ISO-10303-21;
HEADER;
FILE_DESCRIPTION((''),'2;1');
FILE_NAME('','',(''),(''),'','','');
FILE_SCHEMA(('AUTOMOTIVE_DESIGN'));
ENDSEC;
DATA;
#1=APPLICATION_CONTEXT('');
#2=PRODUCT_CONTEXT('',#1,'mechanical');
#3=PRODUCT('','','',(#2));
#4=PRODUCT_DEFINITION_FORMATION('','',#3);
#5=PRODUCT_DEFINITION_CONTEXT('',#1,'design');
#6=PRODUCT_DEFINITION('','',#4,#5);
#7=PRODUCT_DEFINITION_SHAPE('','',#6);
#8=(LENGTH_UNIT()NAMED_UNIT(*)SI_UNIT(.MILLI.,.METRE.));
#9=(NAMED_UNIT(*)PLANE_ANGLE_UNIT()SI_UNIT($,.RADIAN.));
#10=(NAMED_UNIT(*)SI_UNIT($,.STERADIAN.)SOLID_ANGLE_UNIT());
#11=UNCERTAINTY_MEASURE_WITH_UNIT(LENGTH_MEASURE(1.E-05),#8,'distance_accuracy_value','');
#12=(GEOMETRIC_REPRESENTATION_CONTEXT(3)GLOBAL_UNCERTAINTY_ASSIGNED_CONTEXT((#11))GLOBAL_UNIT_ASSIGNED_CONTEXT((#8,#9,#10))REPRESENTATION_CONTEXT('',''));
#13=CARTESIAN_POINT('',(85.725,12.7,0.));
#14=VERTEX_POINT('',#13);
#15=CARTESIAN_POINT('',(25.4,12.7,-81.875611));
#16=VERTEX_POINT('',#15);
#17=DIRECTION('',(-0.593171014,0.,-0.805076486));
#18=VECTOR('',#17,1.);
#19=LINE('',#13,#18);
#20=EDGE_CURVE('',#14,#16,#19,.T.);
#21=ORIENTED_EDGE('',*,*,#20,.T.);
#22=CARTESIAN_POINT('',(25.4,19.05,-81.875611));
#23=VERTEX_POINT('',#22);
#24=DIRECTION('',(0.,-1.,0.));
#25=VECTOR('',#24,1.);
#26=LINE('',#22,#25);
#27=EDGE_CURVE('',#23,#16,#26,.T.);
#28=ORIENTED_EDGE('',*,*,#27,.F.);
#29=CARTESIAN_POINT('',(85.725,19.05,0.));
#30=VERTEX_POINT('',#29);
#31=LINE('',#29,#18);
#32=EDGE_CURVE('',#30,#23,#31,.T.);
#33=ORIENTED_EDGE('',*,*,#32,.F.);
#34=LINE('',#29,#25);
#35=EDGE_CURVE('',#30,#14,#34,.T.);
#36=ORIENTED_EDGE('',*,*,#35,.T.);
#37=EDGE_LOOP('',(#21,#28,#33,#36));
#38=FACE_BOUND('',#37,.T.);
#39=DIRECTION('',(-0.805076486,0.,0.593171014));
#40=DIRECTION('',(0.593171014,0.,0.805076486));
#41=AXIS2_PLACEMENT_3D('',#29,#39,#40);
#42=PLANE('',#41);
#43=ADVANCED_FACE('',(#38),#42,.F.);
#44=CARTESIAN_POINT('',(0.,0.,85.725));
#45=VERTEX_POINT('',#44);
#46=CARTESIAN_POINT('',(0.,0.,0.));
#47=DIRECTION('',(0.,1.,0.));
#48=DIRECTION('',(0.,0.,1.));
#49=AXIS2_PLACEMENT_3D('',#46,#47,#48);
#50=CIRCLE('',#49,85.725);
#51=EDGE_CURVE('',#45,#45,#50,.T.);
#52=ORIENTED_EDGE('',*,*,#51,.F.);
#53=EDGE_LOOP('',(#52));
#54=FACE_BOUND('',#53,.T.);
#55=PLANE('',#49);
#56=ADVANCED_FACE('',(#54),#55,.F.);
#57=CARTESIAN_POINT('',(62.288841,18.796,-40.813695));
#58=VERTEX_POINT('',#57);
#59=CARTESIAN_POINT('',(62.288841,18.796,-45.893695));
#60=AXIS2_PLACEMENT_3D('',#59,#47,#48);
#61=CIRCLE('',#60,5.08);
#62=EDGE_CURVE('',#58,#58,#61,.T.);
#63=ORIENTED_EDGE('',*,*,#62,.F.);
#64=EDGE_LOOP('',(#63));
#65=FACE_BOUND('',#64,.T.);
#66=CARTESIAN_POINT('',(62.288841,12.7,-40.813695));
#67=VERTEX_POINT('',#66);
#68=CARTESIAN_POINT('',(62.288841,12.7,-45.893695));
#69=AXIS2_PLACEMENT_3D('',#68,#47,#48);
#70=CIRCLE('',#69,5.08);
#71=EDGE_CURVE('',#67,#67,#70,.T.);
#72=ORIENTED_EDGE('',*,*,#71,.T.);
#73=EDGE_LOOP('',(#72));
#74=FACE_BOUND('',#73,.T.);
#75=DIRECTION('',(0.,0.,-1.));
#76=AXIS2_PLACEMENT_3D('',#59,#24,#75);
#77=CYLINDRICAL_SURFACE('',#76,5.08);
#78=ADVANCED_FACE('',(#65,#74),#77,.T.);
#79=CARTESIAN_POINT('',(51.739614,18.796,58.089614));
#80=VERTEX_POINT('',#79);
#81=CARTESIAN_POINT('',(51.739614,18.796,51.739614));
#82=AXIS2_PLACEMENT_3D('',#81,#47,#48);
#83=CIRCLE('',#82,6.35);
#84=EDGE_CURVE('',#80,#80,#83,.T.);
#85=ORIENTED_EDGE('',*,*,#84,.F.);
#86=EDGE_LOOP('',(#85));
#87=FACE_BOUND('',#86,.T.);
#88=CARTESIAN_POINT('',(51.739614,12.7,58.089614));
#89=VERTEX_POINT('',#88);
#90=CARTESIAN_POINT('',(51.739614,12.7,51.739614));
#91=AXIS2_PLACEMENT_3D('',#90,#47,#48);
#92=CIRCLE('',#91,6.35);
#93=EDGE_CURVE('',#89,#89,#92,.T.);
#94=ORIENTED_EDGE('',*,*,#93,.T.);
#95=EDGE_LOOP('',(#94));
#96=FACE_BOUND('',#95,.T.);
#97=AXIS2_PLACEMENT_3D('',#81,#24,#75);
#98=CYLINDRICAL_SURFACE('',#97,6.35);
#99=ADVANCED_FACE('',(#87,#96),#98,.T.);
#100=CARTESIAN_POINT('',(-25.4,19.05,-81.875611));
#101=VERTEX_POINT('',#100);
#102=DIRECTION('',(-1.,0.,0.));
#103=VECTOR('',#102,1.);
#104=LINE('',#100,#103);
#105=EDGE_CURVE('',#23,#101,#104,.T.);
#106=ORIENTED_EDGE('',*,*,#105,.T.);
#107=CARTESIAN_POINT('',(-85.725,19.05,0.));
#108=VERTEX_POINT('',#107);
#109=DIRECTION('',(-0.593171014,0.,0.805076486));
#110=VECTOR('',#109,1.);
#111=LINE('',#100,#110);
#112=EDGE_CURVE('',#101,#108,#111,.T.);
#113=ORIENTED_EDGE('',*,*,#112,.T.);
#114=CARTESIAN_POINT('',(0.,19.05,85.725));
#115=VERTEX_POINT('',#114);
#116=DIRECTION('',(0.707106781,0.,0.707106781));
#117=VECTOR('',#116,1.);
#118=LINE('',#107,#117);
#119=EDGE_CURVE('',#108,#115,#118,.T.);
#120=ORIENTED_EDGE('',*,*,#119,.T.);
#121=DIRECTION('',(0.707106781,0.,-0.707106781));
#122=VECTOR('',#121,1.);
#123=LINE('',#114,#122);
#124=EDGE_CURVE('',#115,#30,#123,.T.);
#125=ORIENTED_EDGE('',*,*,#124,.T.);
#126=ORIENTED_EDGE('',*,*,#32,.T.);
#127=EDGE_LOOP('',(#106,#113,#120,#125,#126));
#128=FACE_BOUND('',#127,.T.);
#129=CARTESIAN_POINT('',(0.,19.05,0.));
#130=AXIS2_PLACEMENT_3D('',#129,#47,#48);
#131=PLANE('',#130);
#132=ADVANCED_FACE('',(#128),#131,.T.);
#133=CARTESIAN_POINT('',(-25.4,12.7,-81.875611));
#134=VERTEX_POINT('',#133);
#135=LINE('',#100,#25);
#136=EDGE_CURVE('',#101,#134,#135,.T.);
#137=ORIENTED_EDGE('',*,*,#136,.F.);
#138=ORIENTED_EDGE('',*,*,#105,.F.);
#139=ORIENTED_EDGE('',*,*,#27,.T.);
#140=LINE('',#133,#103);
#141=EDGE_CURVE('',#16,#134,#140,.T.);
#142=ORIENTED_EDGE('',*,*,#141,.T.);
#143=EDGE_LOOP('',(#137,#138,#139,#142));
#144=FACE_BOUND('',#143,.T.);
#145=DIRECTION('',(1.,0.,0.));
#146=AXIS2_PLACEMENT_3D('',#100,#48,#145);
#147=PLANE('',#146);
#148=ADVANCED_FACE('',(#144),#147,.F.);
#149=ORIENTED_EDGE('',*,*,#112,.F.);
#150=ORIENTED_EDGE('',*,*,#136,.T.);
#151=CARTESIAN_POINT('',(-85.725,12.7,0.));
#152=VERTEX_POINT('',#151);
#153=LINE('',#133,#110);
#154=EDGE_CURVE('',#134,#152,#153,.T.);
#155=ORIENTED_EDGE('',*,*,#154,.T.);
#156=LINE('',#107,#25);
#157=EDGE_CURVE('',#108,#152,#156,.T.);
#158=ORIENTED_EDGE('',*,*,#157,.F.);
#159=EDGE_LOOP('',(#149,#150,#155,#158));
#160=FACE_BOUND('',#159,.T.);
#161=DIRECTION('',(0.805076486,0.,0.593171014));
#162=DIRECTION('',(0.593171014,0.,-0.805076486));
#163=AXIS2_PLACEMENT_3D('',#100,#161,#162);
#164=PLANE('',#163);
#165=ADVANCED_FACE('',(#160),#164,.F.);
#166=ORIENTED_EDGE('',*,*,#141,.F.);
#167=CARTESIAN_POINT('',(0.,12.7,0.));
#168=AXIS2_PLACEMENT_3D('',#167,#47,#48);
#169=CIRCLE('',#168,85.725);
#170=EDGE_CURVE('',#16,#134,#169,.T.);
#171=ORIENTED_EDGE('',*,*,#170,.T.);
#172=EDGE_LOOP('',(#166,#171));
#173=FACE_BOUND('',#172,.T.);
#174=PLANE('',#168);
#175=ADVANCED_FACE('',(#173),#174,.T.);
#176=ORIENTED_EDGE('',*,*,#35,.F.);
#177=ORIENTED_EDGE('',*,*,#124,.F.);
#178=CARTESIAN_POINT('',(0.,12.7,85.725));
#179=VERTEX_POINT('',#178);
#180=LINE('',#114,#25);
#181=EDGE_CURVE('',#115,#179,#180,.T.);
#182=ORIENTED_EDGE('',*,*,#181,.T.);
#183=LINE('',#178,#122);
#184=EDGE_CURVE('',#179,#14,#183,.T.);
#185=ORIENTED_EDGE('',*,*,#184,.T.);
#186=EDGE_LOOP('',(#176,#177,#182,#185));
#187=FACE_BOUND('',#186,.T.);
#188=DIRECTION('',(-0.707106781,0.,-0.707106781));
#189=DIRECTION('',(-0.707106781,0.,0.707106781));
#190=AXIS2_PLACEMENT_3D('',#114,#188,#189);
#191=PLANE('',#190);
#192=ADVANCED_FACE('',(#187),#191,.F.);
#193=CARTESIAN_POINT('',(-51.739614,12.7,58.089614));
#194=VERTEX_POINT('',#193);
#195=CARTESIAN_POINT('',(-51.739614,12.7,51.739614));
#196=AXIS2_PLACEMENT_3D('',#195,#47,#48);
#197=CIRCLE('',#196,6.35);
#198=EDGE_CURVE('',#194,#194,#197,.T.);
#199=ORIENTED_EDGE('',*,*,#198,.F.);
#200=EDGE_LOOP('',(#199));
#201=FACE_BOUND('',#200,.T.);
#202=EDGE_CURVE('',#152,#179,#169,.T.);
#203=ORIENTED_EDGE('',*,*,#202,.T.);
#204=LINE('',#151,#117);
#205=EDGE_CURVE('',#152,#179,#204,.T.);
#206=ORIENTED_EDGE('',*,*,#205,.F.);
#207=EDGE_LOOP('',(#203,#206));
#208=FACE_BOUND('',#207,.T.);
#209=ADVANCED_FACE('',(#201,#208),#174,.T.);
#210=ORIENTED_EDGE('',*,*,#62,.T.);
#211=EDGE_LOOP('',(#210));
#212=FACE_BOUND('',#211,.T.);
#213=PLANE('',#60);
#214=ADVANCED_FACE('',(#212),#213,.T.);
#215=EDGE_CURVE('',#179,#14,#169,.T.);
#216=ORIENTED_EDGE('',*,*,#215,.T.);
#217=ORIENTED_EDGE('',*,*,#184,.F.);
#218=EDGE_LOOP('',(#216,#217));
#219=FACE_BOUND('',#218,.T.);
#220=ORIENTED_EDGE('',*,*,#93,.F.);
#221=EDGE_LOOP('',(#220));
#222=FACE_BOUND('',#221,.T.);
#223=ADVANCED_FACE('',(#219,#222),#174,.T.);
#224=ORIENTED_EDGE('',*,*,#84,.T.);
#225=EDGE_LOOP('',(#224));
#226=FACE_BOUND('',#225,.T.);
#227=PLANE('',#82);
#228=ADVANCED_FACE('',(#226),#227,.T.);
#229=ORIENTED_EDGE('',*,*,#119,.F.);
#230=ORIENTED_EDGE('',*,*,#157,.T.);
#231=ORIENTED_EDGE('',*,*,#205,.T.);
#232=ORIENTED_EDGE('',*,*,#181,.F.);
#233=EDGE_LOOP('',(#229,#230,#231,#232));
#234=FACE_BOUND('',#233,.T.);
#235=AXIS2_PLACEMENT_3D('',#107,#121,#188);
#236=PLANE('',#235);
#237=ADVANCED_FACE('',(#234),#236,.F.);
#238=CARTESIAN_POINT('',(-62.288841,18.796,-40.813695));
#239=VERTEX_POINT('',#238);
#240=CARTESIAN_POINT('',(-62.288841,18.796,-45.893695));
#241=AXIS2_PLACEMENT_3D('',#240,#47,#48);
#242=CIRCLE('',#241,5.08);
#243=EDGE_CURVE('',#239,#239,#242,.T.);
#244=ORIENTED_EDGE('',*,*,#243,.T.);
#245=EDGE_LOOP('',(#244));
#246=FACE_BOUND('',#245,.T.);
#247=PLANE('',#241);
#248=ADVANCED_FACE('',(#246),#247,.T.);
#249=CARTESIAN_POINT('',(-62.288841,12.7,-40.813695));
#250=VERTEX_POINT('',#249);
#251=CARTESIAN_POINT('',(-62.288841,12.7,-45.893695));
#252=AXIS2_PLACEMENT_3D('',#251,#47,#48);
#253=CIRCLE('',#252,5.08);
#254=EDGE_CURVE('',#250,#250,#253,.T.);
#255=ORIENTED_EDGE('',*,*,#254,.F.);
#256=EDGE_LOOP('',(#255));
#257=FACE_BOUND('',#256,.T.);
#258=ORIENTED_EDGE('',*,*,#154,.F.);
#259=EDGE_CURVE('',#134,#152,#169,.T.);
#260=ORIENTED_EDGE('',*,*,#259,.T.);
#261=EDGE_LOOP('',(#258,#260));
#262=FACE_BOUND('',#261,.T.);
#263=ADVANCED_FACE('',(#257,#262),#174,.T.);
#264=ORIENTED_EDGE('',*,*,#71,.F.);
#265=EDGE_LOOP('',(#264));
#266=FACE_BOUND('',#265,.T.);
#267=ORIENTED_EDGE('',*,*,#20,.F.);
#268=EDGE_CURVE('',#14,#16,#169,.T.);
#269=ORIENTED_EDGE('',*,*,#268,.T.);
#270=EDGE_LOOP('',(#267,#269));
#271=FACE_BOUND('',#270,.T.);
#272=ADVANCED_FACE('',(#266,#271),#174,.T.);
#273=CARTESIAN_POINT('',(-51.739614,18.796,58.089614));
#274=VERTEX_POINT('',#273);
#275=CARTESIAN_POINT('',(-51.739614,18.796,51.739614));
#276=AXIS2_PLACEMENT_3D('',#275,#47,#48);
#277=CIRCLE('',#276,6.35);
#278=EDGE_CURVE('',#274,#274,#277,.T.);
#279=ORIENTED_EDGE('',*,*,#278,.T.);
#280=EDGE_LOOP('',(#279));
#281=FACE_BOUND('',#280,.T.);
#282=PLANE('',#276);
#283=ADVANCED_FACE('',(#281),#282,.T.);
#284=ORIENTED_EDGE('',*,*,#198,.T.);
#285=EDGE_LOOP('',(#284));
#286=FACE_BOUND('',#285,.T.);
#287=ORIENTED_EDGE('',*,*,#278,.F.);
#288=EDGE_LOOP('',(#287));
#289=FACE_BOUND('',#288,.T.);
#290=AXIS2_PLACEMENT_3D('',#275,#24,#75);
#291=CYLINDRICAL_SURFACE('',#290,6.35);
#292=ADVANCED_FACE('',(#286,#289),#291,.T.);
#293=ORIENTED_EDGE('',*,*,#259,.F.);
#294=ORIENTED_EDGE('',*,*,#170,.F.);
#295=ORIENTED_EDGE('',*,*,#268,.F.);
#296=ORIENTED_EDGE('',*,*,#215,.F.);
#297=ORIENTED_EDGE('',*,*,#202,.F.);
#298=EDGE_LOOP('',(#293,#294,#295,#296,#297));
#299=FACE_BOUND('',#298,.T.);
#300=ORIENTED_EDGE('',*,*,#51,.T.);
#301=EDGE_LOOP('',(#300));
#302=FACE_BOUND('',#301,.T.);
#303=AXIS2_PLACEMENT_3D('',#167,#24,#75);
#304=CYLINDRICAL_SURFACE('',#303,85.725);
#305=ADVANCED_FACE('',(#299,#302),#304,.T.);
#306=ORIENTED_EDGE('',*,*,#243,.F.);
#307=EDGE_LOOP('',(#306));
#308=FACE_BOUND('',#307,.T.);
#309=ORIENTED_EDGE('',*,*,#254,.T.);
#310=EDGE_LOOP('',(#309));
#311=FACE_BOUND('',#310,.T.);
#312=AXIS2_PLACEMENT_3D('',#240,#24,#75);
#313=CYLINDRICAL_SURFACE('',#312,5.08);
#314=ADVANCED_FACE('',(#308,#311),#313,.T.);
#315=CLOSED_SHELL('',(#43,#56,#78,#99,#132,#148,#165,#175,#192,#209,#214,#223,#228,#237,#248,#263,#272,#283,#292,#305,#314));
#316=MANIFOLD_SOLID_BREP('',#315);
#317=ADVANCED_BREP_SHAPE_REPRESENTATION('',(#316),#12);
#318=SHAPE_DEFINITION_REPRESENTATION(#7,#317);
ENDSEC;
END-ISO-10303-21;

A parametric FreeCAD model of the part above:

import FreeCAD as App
import Part
import Sketcher
from FreeCAD import Vector
Q = App.Units.Quantity

doc = App.newDocument("Part")
body = doc.addObject("PartDesign::Body", "Body")

sketch1 = body.newObject("Sketcher::SketchObject", "Sketch")
sketch1.AttachmentSupport = (doc.getObject("XZ_Plane"), [""])
sketch1.MapMode = "FlatFace"
sketch1.addGeometry(Part.Circle(Vector(0, 0, 0), Vector(0, 0, 1), 86), False)
sketch1.addConstraint(Sketcher.Constraint("Coincident", 0, 3, -1, 1))
sketch1.addConstraint(Sketcher.Constraint("Diameter", 0, Q("6.75 in")))
pad1 = body.newObject("PartDesign::Pad", "Pad")
pad1.Profile = sketch1
pad1.Length = Q("0.5 in")
pad1.Reversed = True

sketch2 = body.newObject("Sketcher::SketchObject", "Sketch001")
sketch2.AttachmentSupport = (doc.getObject("XZ_Plane"), [""])
sketch2.MapMode = "FlatFace"
sketch2.AttachmentOffset = App.Placement(Vector(0, 0, -0.5 * 25.4), App.Rotation())
sketch2.addGeometry(Part.LineSegment(Vector(25, -82, 0), Vector(-25, -82, 0)), False)
sketch2.addGeometry(Part.LineSegment(Vector(-25, -82, 0), Vector(-86, 0, 0)), False)
sketch2.addGeometry(Part.LineSegment(Vector(-86, 0, 0), Vector(0, 86, 0)), False)
sketch2.addGeometry(Part.LineSegment(Vector(0, 86, 0), Vector(86, 0, 0)), False)
sketch2.addGeometry(Part.LineSegment(Vector(86, 0, 0), Vector(25, -82, 0)), False)
sketch2.addConstraint(Sketcher.Constraint("Coincident", 0, 2, 1, 1))
sketch2.addConstraint(Sketcher.Constraint("Coincident", 1, 2, 2, 1))
sketch2.addConstraint(Sketcher.Constraint("Coincident", 2, 2, 3, 1))
sketch2.addConstraint(Sketcher.Constraint("Coincident", 3, 2, 4, 1))
sketch2.addConstraint(Sketcher.Constraint("Coincident", 4, 2, 0, 1))
sketch2.addConstraint(Sketcher.Constraint("Horizontal", 0))
sketch2.addConstraint(Sketcher.Constraint("Symmetric", 1, 2, 3, 2, -1, 1))
sketch2.addConstraint(Sketcher.Constraint("PointOnObject", 1, 2, -1))
sketch2.addConstraint(Sketcher.Constraint("PointOnObject", 2, 2, -2))
sketch2.addConstraint(Sketcher.Constraint("Perpendicular", 2, 3))
sketch2.addConstraint(Sketcher.Constraint("Equal", 1, 4))
sketch2.addConstraint(Sketcher.Constraint("DistanceX", 0, 2, 0, 1, Q("2 in")))
sketch2.addConstraint(Sketcher.Constraint("DistanceX", 1, 2, 3, 2, Q("6.75 in")))
sketch2.addConstraint(Sketcher.Constraint("Distance", 1, Q("101.69917 mm")))
pad2 = body.newObject("PartDesign::Pad", "Pad001")
pad2.Profile = sketch2
pad2.Length = Q("0.25 in")
pad2.Reversed = True

sketch3 = body.newObject("Sketcher::SketchObject", "Sketch002")
sketch3.AttachmentSupport = (doc.getObject("XZ_Plane"), [""])
sketch3.MapMode = "FlatFace"
sketch3.AttachmentOffset = App.Placement(Vector(0, 0, -0.5 * 25.4), App.Rotation())
sketch3.addGeometry(Part.Circle(Vector(-52, 52, 0), Vector(0, 0, 1), 6), False)
sketch3.addGeometry(Part.Circle(Vector(52, 52, 0), Vector(0, 0, 1), 6), False)
sketch3.addGeometry(Part.Circle(Vector(62, -46, 0), Vector(0, 0, 1), 5), False)
sketch3.addGeometry(Part.Circle(Vector(-62, -46, 0), Vector(0, 0, 1), 5), False)
sketch3.addConstraint(Sketcher.Constraint("Equal", 0, 1))
sketch3.addConstraint(Sketcher.Constraint("Equal", 2, 3))
sketch3.addConstraint(Sketcher.Constraint("Symmetric", 0, 3, 1, 3, -2))
sketch3.addConstraint(Sketcher.Constraint("Symmetric", 2, 3, 3, 3, -2))
sketch3.addConstraint(Sketcher.Constraint("Diameter", 0, Q("0.5 in")))
sketch3.addConstraint(Sketcher.Constraint("Diameter", 2, Q("0.4 in")))
sketch3.addConstraint(Sketcher.Constraint("DistanceX", -1, 1, 2, 3, Q("62.288841 mm")))
sketch3.addConstraint(Sketcher.Constraint("DistanceX", 0, 3, 1, 3, Q("103.479229 mm")))
sketch3.addConstraint(Sketcher.Constraint("DistanceY", 2, 3, 1, 3, Q("97.63331 mm")))
sketch3.addConstraint(Sketcher.Constraint("DistanceY", -1, 1, 0, 3, Q("51.739614 mm")))
pad3 = body.newObject("PartDesign::Pad", "Pad002")
pad3.Profile = sketch3
pad3.Length = Q("0.24 in")
pad3.Reversed = True

doc.recompute()
